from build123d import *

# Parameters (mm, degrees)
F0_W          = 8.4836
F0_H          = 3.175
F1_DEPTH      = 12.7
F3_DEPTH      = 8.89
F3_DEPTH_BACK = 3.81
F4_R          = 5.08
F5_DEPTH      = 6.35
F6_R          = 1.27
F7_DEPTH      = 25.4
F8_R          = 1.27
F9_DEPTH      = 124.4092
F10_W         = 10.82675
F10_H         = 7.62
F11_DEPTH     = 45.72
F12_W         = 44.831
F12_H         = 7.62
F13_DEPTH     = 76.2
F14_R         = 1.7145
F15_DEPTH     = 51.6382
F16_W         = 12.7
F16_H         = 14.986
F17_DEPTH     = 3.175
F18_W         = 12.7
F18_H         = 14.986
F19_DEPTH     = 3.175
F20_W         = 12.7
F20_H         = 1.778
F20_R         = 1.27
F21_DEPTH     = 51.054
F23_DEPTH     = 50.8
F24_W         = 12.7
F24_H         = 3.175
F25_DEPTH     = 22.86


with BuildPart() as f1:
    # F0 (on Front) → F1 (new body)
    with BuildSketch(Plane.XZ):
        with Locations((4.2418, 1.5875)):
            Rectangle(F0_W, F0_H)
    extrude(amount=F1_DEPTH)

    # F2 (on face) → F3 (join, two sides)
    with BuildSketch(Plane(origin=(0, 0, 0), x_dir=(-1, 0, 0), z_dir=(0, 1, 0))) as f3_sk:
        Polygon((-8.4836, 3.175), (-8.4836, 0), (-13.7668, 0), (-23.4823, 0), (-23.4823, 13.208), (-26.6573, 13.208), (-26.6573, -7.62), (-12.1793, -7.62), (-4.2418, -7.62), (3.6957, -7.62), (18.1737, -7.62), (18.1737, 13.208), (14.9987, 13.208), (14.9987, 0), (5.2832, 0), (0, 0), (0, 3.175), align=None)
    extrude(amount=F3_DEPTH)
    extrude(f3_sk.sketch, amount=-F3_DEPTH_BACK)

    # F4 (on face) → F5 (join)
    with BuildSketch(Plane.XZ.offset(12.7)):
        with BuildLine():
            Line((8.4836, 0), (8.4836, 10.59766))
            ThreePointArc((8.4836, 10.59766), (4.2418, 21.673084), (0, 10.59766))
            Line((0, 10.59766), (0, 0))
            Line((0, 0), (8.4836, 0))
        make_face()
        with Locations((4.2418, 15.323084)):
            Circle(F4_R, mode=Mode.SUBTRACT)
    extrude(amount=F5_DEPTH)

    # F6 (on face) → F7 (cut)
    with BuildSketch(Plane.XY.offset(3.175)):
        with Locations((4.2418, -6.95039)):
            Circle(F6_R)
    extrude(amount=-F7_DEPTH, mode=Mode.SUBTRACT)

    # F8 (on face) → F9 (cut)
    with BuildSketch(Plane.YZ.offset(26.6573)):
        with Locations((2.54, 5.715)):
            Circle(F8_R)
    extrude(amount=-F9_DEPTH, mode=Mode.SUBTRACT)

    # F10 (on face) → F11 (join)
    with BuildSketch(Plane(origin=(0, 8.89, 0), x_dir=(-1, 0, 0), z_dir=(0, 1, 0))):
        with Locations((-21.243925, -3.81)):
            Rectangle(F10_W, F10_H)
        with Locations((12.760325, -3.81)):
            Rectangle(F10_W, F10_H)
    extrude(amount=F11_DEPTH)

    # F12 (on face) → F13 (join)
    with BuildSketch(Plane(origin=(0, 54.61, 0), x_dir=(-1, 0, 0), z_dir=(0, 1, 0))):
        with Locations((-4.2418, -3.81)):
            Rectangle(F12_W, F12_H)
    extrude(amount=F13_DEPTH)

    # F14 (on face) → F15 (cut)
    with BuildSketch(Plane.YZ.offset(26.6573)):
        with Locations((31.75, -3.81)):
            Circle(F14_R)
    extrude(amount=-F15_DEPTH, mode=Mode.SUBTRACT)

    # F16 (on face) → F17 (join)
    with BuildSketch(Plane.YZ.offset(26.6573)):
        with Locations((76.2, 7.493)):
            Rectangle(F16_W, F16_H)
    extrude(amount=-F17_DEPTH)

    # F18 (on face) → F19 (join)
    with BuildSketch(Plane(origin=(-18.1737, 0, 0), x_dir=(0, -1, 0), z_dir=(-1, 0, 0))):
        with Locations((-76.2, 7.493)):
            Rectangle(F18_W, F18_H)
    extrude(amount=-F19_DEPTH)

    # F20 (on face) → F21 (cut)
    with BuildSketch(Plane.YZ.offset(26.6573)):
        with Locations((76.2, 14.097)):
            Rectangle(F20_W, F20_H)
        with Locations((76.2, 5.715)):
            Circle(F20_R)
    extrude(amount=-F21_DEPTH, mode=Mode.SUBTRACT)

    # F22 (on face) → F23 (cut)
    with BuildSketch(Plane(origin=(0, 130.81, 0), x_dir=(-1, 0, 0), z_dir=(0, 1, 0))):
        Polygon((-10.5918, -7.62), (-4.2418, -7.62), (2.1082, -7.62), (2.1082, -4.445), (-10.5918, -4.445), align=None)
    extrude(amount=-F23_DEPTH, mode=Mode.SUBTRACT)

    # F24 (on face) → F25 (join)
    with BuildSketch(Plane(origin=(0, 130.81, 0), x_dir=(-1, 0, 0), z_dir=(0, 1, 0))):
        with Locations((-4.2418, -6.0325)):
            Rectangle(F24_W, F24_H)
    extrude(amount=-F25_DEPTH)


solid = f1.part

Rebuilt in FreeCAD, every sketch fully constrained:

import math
import FreeCAD as App
import Part
import Sketcher
from FreeCAD import Vector
Q = App.Units.Quantity

doc = App.newDocument("Part")
params = doc.addObject("Spreadsheet::Sheet", "Params")
for row, (alias, value) in enumerate([
    ("sketch1_width", "0.334 in"),
    ("sketch1_height", "0.125 in"),
    ("pad1_length", "0.5 in"),
    ("sketch2_height", "0.52 in"),
    ("sketch2_height2", "0.82 in"),
    ("sketch2_width", "0.125 in"),
    ("sketch2_width2", "1.765 in"),
    ("sketch2_width3", "0.334 in"),
    ("pad2_length", "0.35 in"),
    ("pad2_length2", "0.15 in"),
    ("sketch3_diameter", "0.4 in"),
    ("sketch3_radius", "0.25 in"),
    ("sketch3_width", "0.334 in"),
    ("pad3_length", "0.25 in"),
    ("sketch4_diameter", "0.1 in"),
    ("pocket1_length", "1 in"),
    ("sketch5_diameter", "0.1 in"),
    ("pocket2_length", "4.898 in"),
    ("sketch6_height", "0.3 in"),
    ("pad4_length", "1.8 in"),
    ("sketch7_height", "0.3 in"),
    ("sketch7_width", "1.765 in"),
    ("pad5_length", "3 in"),
    ("sketch8_diameter", "0.135 in"),
    ("pocket3_length", "2.033 in"),
    ("sketch9_width", "0.5 in"),
    ("sketch9_height", "0.59 in"),
    ("pad6_length", "0.125 in"),
    ("sketch10_width", "0.5 in"),
    ("sketch10_height", "0.59 in"),
    ("pad7_length", "0.125 in"),
    ("sketch11_diameter", "0.1 in"),
    ("sketch11_width", "0.5 in"),
    ("sketch11_height", "0.07 in"),
    ("pocket4_length", "2.01 in"),
    ("sketch12_width", "0.5 in"),
    ("sketch12_height", "0.125 in"),
    ("pocket5_length", "2 in"),
    ("sketch13_width", "0.5 in"),
    ("sketch13_height", "0.125 in"),
    ("pad8_length", "0.9 in"),
], start=1):
    params.set(f"A{row}", alias)
    params.set(f"B{row}", "=" + value)
    params.setAlias(f"B{row}", alias)

body = doc.addObject("PartDesign::Body", "Body")

sketch1 = body.newObject("Sketcher::SketchObject", "Sketch")
sketch1.AttachmentSupport = (doc.getObject("XZ_Plane"), [""])
sketch1.MapMode = "FlatFace"
sketch1.addGeometry(Part.LineSegment(Vector(0, 3.175, 0), Vector(0, 0, 0)), False)
sketch1.addGeometry(Part.LineSegment(Vector(0, 0, 0), Vector(8.4836, 0, 0)), False)
sketch1.addGeometry(Part.LineSegment(Vector(8.4836, 0, 0), Vector(8.4836, 3.175, 0)), False)
sketch1.addGeometry(Part.LineSegment(Vector(8.4836, 3.175, 0), Vector(0, 3.175, 0)), False)
sketch1.addConstraint(Sketcher.Constraint("Coincident", 0, 2, 1, 1))
sketch1.addConstraint(Sketcher.Constraint("Coincident", 1, 2, 2, 1))
sketch1.addConstraint(Sketcher.Constraint("Coincident", 2, 2, 3, 1))
sketch1.addConstraint(Sketcher.Constraint("Coincident", 3, 2, 0, 1))
sketch1.addConstraint(Sketcher.Constraint("Vertical", 0))
sketch1.addConstraint(Sketcher.Constraint("Horizontal", 1))
sketch1.addConstraint(Sketcher.Constraint("Vertical", 2))
sketch1.addConstraint(Sketcher.Constraint("Horizontal", 3))
sketch1.addConstraint(Sketcher.Constraint("Coincident", 0, 2, -1, 1))
sketch1.addConstraint(Sketcher.Constraint("DistanceX", 1, 1, 1, 2, Q("0.334 in")))
sketch1.addConstraint(Sketcher.Constraint("DistanceY", 0, 2, 0, 1, Q("0.125 in")))
sketch1.setExpression("Constraints[9]", "Params.sketch1_width")
sketch1.setExpression("Constraints[10]", "Params.sketch1_height")
pad1 = body.newObject("PartDesign::Pad", "Pad")
pad1.Profile = sketch1
pad1.setExpression("Length", "Params.pad1_length")

sketch2 = body.newObject("Sketcher::SketchObject", "Sketch001")
sketch2.AttachmentSupport = (doc.getObject("XZ_Plane"), [""])
sketch2.MapMode = "FlatFace"
sketch2.addGeometry(Part.LineSegment(Vector(8.4836, 3.175, 0), Vector(8.4836, 0, 0)), False)
sketch2.addGeometry(Part.LineSegment(Vector(8.4836, 0, 0), Vector(23.4823, 0, 0)), False)
sketch2.addGeometry(Part.LineSegment(Vector(23.4823, 0, 0), Vector(23.4823, 13.208, 0)), False)
sketch2.addGeometry(Part.LineSegment(Vector(23.4823, 13.208, 0), Vector(26.6573, 13.208, 0)), False)
sketch2.addGeometry(Part.LineSegment(Vector(26.6573, 13.208, 0), Vector(26.6573, -7.62, 0)), False)
sketch2.addGeometry(Part.LineSegment(Vector(26.6573, -7.62, 0), Vector(-18.1737, -7.62, 0)), False)
sketch2.addGeometry(Part.LineSegment(Vector(-18.1737, -7.62, 0), Vector(-18.1737, 13.208, 0)), False)
sketch2.addGeometry(Part.LineSegment(Vector(-18.1737, 13.208, 0), Vector(-14.9987, 13.208, 0)), False)
sketch2.addGeometry(Part.LineSegment(Vector(-14.9987, 13.208, 0), Vector(-14.9987, 0, 0)), False)
sketch2.addGeometry(Part.LineSegment(Vector(-14.9987, 0, 0), Vector(0, 0, 0)), False)
sketch2.addGeometry(Part.LineSegment(Vector(0, 0, 0), Vector(0, 3.175, 0)), False)
sketch2.addGeometry(Part.LineSegment(Vector(0, 3.175, 0), Vector(8.4836, 3.175, 0)), False)
sketch2.addConstraint(Sketcher.Constraint("Coincident", 0, 2, 1, 1))
sketch2.addConstraint(Sketcher.Constraint("Coincident", 1, 2, 2, 1))
sketch2.addConstraint(Sketcher.Constraint("Coincident", 2, 2, 3, 1))
sketch2.addConstraint(Sketcher.Constraint("Coincident", 3, 2, 4, 1))
sketch2.addConstraint(Sketcher.Constraint("Coincident", 4, 2, 5, 1))
sketch2.addConstraint(Sketcher.Constraint("Coincident", 5, 2, 6, 1))
sketch2.addConstraint(Sketcher.Constraint("Coincident", 6, 2, 7, 1))
sketch2.addConstraint(Sketcher.Constraint("Coincident", 7, 2, 8, 1))
sketch2.addConstraint(Sketcher.Constraint("Coincident", 8, 2, 9, 1))
sketch2.addConstraint(Sketcher.Constraint("Coincident", 9, 2, 10, 1))
sketch2.addConstraint(Sketcher.Constraint("Coincident", 10, 2, 11, 1))
sketch2.addConstraint(Sketcher.Constraint("Coincident", 11, 2, 0, 1))
sketch2.addConstraint(Sketcher.Constraint("Vertical", 0))
sketch2.addConstraint(Sketcher.Constraint("Horizontal", 1))
sketch2.addConstraint(Sketcher.Constraint("Vertical", 2))
sketch2.addConstraint(Sketcher.Constraint("Horizontal", 3))
sketch2.addConstraint(Sketcher.Constraint("Vertical", 4))
sketch2.addConstraint(Sketcher.Constraint("Horizontal", 5))
sketch2.addConstraint(Sketcher.Constraint("Vertical", 6))
sketch2.addConstraint(Sketcher.Constraint("Horizontal", 7))
sketch2.addConstraint(Sketcher.Constraint("Vertical", 8))
sketch2.addConstraint(Sketcher.Constraint("Horizontal", 9))
sketch2.addConstraint(Sketcher.Constraint("Vertical", 10))
sketch2.addConstraint(Sketcher.Constraint("Horizontal", 11))
sketch2.addConstraint(Sketcher.Constraint("Coincident", 9, 2, -1, 1))
sketch2.addConstraint(Sketcher.Constraint("PointOnObject", 0, 2, -1))
sketch2.addConstraint(Sketcher.Constraint("Horizontal", 3, 2, 6, 2))
sketch2.addConstraint(Sketcher.Constraint("Equal", 3, 7))
sketch2.addConstraint(Sketcher.Constraint("Equal", 1, 9))
sketch2.addConstraint(Sketcher.Constraint("Equal", 7, 0))
sketch2.addConstraint(Sketcher.Constraint("DistanceY", 2, 1, 2, 2, Q("0.52 in")))
sketch2.addConstraint(Sketcher.Constraint("DistanceY", 4, 2, 4, 1, Q("0.82 in")))
sketch2.addConstraint(Sketcher.Constraint("DistanceX", 3, 1, 3, 2, Q("0.125 in")))
sketch2.addConstraint(Sketcher.Constraint("DistanceX", 5, 2, 5, 1, Q("1.765 in")))
sketch2.addConstraint(Sketcher.Constraint("DistanceX", 11, 1, 11, 2, Q("0.334 in")))
sketch2.setExpression("Constraints[30]", "Params.sketch2_height")
sketch2.setExpression("Constraints[31]", "Params.sketch2_height2")
sketch2.setExpression("Constraints[32]", "Params.sketch2_width")
sketch2.setExpression("Constraints[33]", "Params.sketch2_width2")
sketch2.setExpression("Constraints[34]", "Params.sketch2_width3")
pad2 = body.newObject("PartDesign::Pad", "Pad001")
pad2.Profile = sketch2
pad2.Type = "TwoLengths"
pad2.setExpression("Length", "Params.pad2_length")
pad2.setExpression("Length2", "Params.pad2_length2")
pad2.Reversed = True

sketch3 = body.newObject("Sketcher::SketchObject", "Sketch002")
sketch3.AttachmentSupport = (doc.getObject("XZ_Plane"), [""])
sketch3.MapMode = "FlatFace"
sketch3.AttachmentOffset = App.Placement(Vector(0, 0, 0.5 * 25.4), App.Rotation())
sketch3.addGeometry(Part.LineSegment(Vector(8.4836, 0, 0), Vector(8.4836, 10.59766, 0)), False)
sketch3.addGeometry(Part.ArcOfCircle(Part.Circle(Vector(4.2418, 15.323084, 0), Vector(0, 0, 1), 6.35), math.radians(-48.087109), math.radians(228.087109)), False)
sketch3.addGeometry(Part.LineSegment(Vector(0, 10.59766, 0), Vector(0, 0, 0)), False)
sketch3.addGeometry(Part.LineSegment(Vector(0, 0, 0), Vector(8.4836, 0, 0)), False)
sketch3.addGeometry(Part.Circle(Vector(4.2418, 15.323084, 0), Vector(0, 0, 1), 5.08), False)
sketch3.addConstraint(Sketcher.Constraint("Coincident", 0, 2, 1, 1))
sketch3.addConstraint(Sketcher.Constraint("Coincident", 1, 2, 2, 1))
sketch3.addConstraint(Sketcher.Constraint("Coincident", 2, 2, 3, 1))
sketch3.addConstraint(Sketcher.Constraint("Coincident", 3, 2, 0, 1))
sketch3.addConstraint(Sketcher.Constraint("Vertical", 0))
sketch3.addConstraint(Sketcher.Constraint("Vertical", 2))
sketch3.addConstraint(Sketcher.Constraint("Horizontal", 3))
sketch3.addConstraint(Sketcher.Constraint("Coincident", 2, 2, -1, 1))
sketch3.addConstraint(Sketcher.Constraint("Coincident", 4, 3, 1, 3))
sketch3.addConstraint(Sketcher.Constraint("Horizontal", 0, 2, 1, 2))
sketch3.addConstraint(Sketcher.Constraint("Diameter", 4, Q("0.4 in")))
sketch3.addConstraint(Sketcher.Constraint("Radius", 1, Q("0.25 in")))
sketch3.addConstraint(Sketcher.Constraint("DistanceX", 3, 1, 3, 2, Q("0.334 in")))
sketch3.addConstraint(Sketcher.Constraint("DistanceY", 0, 1, 0, 2, Q("10.59766 mm")))
sketch3.setExpression("Constraints[10]", "Params.sketch3_diameter")
sketch3.setExpression("Constraints[11]", "Params.sketch3_radius")
sketch3.setExpression("Constraints[12]", "Params.sketch3_width")
pad3 = body.newObject("PartDesign::Pad", "Pad002")
pad3.Profile = sketch3
pad3.setExpression("Length", "Params.pad3_length")

sketch4 = body.newObject("Sketcher::SketchObject", "Sketch003")
sketch4.AttachmentSupport = (doc.getObject("XY_Plane"), [""])
sketch4.MapMode = "FlatFace"
sketch4.AttachmentOffset = App.Placement(Vector(0, 0, 0.125 * 25.4), App.Rotation())
sketch4.addGeometry(Part.Circle(Vector(4.2418, -6.95039, 0), Vector(0, 0, 1), 1.27), False)
sketch4.addConstraint(Sketcher.Constraint("Diameter", 0, Q("0.1 in")))
sketch4.addConstraint(Sketcher.Constraint("DistanceX", -1, 1, 0, 3, Q("0.167 in")))
sketch4.addConstraint(Sketcher.Constraint("DistanceY", 0, 3, -1, 1, Q("6.95039 mm")))
sketch4.setExpression("Constraints[0]", "Params.sketch4_diameter")
pocket1 = body.newObject("PartDesign::Pocket", "Pocket")
pocket1.Profile = sketch4
pocket1.setExpression("Length", "Params.pocket1_length")

sketch5 = body.newObject("Sketcher::SketchObject", "Sketch004")
sketch5.AttachmentSupport = (doc.getObject("YZ_Plane"), [""])
sketch5.MapMode = "FlatFace"
sketch5.AttachmentOffset = App.Placement(Vector(0, 0, 1.0495 * 25.4), App.Rotation())
sketch5.addGeometry(Part.Circle(Vector(2.54, 5.715, 0), Vector(0, 0, 1), 1.27), False)
sketch5.addConstraint(Sketcher.Constraint("Diameter", 0, Q("0.1 in")))
sketch5.addConstraint(Sketcher.Constraint("DistanceX", -1, 1, 0, 3, Q("0.1 in")))
sketch5.addConstraint(Sketcher.Constraint("DistanceY", -1, 1, 0, 3, Q("0.225 in")))
sketch5.setExpression("Constraints[0]", "Params.sketch5_diameter")
pocket2 = body.newObject("PartDesign::Pocket", "Pocket001")
pocket2.Profile = sketch5
pocket2.setExpression("Length", "Params.pocket2_length")

sketch6 = body.newObject("Sketcher::SketchObject", "Sketch005")
sketch6.AttachmentSupport = (doc.getObject("XZ_Plane"), [""])
sketch6.MapMode = "FlatFace"
sketch6.AttachmentOffset = App.Placement(Vector(0, 0, -0.35 * 25.4), App.Rotation())
sketch6.addGeometry(Part.LineSegment(Vector(26.6573, 0, 0), Vector(26.6573, -7.62, 0)), False)
sketch6.addGeometry(Part.LineSegment(Vector(26.6573, -7.62, 0), Vector(15.83055, -7.62, 0)), False)
sketch6.addGeometry(Part.LineSegment(Vector(15.83055, -7.62, 0), Vector(15.83055, 0, 0)), False)
sketch6.addGeometry(Part.LineSegment(Vector(15.83055, 0, 0), Vector(26.6573, 0, 0)), False)
sketch6.addGeometry(Part.LineSegment(Vector(-7.34695, 0, 0), Vector(-7.34695, -7.62, 0)), False)
sketch6.addGeometry(Part.LineSegment(Vector(-7.34695, -7.62, 0), Vector(-18.1737, -7.62, 0)), False)
sketch6.addGeometry(Part.LineSegment(Vector(-18.1737, -7.62, 0), Vector(-18.1737, 0, 0)), False)
sketch6.addGeometry(Part.LineSegment(Vector(-18.1737, 0, 0), Vector(-7.34695, 0, 0)), False)
sketch6.addConstraint(Sketcher.Constraint("Coincident", 0, 2, 1, 1))
sketch6.addConstraint(Sketcher.Constraint("Coincident", 1, 2, 2, 1))
sketch6.addConstraint(Sketcher.Constraint("Coincident", 2, 2, 3, 1))
sketch6.addConstraint(Sketcher.Constraint("Coincident", 3, 2, 0, 1))
sketch6.addConstraint(Sketcher.Constraint("Coincident", 4, 2, 5, 1))
sketch6.addConstraint(Sketcher.Constraint("Coincident", 5, 2, 6, 1))
sketch6.addConstraint(Sketcher.Constraint("Coincident", 6, 2, 7, 1))
sketch6.addConstraint(Sketcher.Constraint("Coincident", 7, 2, 4, 1))
sketch6.addConstraint(Sketcher.Constraint("Vertical", 0))
sketch6.addConstraint(Sketcher.Constraint("Horizontal", 1))
sketch6.addConstraint(Sketcher.Constraint("Vertical", 2))
sketch6.addConstraint(Sketcher.Constraint("Horizontal", 3))
sketch6.addConstraint(Sketcher.Constraint("Vertical", 4))
sketch6.addConstraint(Sketcher.Constraint("Horizontal", 5))
sketch6.addConstraint(Sketcher.Constraint("Vertical", 6))
sketch6.addConstraint(Sketcher.Constraint("Horizontal", 7))
sketch6.addConstraint(Sketcher.Constraint("PointOnObject", 2, 2, -1))
sketch6.addConstraint(Sketcher.Constraint("PointOnObject", 6, 2, -1))
sketch6.addConstraint(Sketcher.Constraint("Horizontal", 1, 2, 4, 2))
sketch6.addConstraint(Sketcher.Constraint("Equal", 3, 5))
sketch6.addConstraint(Sketcher.Constraint("DistanceY", 0, 2, 0, 1, Q("0.3 in")))
sketch6.addConstraint(Sketcher.Constraint("DistanceX", 5, 2, 0, 2, Q("1.765 in")))
sketch6.addConstraint(Sketcher.Constraint("DistanceX", -1, 1, 0, 2, Q("1.0495 in")))
sketch6.addConstraint(Sketcher.Constraint("DistanceX", 4, 2, 1, 2, Q("0.9125 in")))
sketch6.setExpression("Constraints[20]", "Params.sketch6_height")
pad4 = body.newObject("PartDesign::Pad", "Pad003")
pad4.Profile = sketch6
pad4.setExpression("Length", "Params.pad4_length")
pad4.Reversed = True

sketch7 = body.newObject("Sketcher::SketchObject", "Sketch006")
sketch7.AttachmentSupport = (doc.getObject("XZ_Plane"), [""])
sketch7.MapMode = "FlatFace"
sketch7.AttachmentOffset = App.Placement(Vector(0, 0, -2.15 * 25.4), App.Rotation())
sketch7.addGeometry(Part.LineSegment(Vector(26.6573, 0, 0), Vector(26.6573, -7.62, 0)), False)
sketch7.addGeometry(Part.LineSegment(Vector(26.6573, -7.62, 0), Vector(-18.1737, -7.62, 0)), False)
sketch7.addGeometry(Part.LineSegment(Vector(-18.1737, -7.62, 0), Vector(-18.1737, 0, 0)), False)
sketch7.addGeometry(Part.LineSegment(Vector(-18.1737, 0, 0), Vector(26.6573, 0, 0)), False)
sketch7.addConstraint(Sketcher.Constraint("Coincident", 0, 2, 1, 1))
sketch7.addConstraint(Sketcher.Constraint("Coincident", 1, 2, 2, 1))
sketch7.addConstraint(Sketcher.Constraint("Coincident", 2, 2, 3, 1))
sketch7.addConstraint(Sketcher.Constraint("Coincident", 3, 2, 0, 1))
sketch7.addConstraint(Sketcher.Constraint("Vertical", 0))
sketch7.addConstraint(Sketcher.Constraint("Horizontal", 1))
sketch7.addConstraint(Sketcher.Constraint("Vertical", 2))
sketch7.addConstraint(Sketcher.Constraint("Horizontal", 3))
sketch7.addConstraint(Sketcher.Constraint("PointOnObject", 2, 2, -1))
sketch7.addConstraint(Sketcher.Constraint("DistanceY", 0, 2, 0, 1, Q("0.3 in")))
sketch7.addConstraint(Sketcher.Constraint("DistanceX", 1, 2, 1, 1, Q("1.765 in")))
sketch7.addConstraint(Sketcher.Constraint("DistanceX", -1, 1, 0, 2, Q("1.0495 in")))
sketch7.setExpression("Constraints[9]", "Params.sketch7_height")
sketch7.setExpression("Constraints[10]", "Params.sketch7_width")
pad5 = body.newObject("PartDesign::Pad", "Pad004")
pad5.Profile = sketch7
pad5.setExpression("Length", "Params.pad5_length")
pad5.Reversed = True

sketch8 = body.newObject("Sketcher::SketchObject", "Sketch007")
sketch8.AttachmentSupport = (doc.getObject("YZ_Plane"), [""])
sketch8.MapMode = "FlatFace"
sketch8.AttachmentOffset = App.Placement(Vector(0, 0, 1.0495 * 25.4), App.Rotation())
sketch8.addGeometry(Part.Circle(Vector(31.75, -3.81, 0), Vector(0, 0, 1), 1.7145), False)
sketch8.addConstraint(Sketcher.Constraint("Diameter", 0, Q("0.135 in")))
sketch8.addConstraint(Sketcher.Constraint("DistanceX", -1, 1, 0, 3, Q("1.25 in")))
sketch8.addConstraint(Sketcher.Constraint("DistanceY", 0, 3, -1, 1, Q("0.15 in")))
sketch8.setExpression("Constraints[0]", "Params.sketch8_diameter")
pocket3 = body.newObject("PartDesign::Pocket", "Pocket002")
pocket3.Profile = sketch8
pocket3.setExpression("Length", "Params.pocket3_length")

sketch9 = body.newObject("Sketcher::SketchObject", "Sketch008")
sketch9.AttachmentSupport = (doc.getObject("YZ_Plane"), [""])
sketch9.MapMode = "FlatFace"
sketch9.AttachmentOffset = App.Placement(Vector(0, 0, 1.0495 * 25.4), App.Rotation())
sketch9.addGeometry(Part.LineSegment(Vector(69.85, 14.986, 0), Vector(69.85, 0, 0)), False)
sketch9.addGeometry(Part.LineSegment(Vector(69.85, 0, 0), Vector(82.55, 0, 0)), False)
sketch9.addGeometry(Part.LineSegment(Vector(82.55, 0, 0), Vector(82.55, 14.986, 0)), False)
sketch9.addGeometry(Part.LineSegment(Vector(82.55, 14.986, 0), Vector(69.85, 14.986, 0)), False)
sketch9.addConstraint(Sketcher.Constraint("Coincident", 0, 2, 1, 1))
sketch9.addConstraint(Sketcher.Constraint("Coincident", 1, 2, 2, 1))
sketch9.addConstraint(Sketcher.Constraint("Coincident", 2, 2, 3, 1))
sketch9.addConstraint(Sketcher.Constraint("Coincident", 3, 2, 0, 1))
sketch9.addConstraint(Sketcher.Constraint("Vertical", 0))
sketch9.addConstraint(Sketcher.Constraint("Horizontal", 1))
sketch9.addConstraint(Sketcher.Constraint("Vertical", 2))
sketch9.addConstraint(Sketcher.Constraint("Horizontal", 3))
sketch9.addConstraint(Sketcher.Constraint("PointOnObject", 0, 2, -1))
sketch9.addConstraint(Sketcher.Constraint("DistanceX", 1, 1, 1, 2, Q("0.5 in")))
sketch9.addConstraint(Sketcher.Constraint("DistanceY", 0, 2, 0, 1, Q("0.59 in")))
sketch9.addConstraint(Sketcher.Constraint("DistanceX", -1, 1, 0, 2, Q("2.75 in")))
sketch9.setExpression("Constraints[9]", "Params.sketch9_width")
sketch9.setExpression("Constraints[10]", "Params.sketch9_height")
pad6 = body.newObject("PartDesign::Pad", "Pad005")
pad6.Profile = sketch9
pad6.setExpression("Length", "Params.pad6_length")
pad6.Reversed = True

sketch10 = body.newObject("Sketcher::SketchObject", "Sketch009")
sketch10.AttachmentSupport = (doc.getObject("YZ_Plane"), [""])
sketch10.MapMode = "FlatFace"
sketch10.AttachmentOffset = App.Placement(Vector(0, 0, -0.7155 * 25.4), App.Rotation())
sketch10.addGeometry(Part.LineSegment(Vector(82.55, 14.986, 0), Vector(82.55, 0, 0)), False)
sketch10.addGeometry(Part.LineSegment(Vector(82.55, 0, 0), Vector(69.85, 0, 0)), False)
sketch10.addGeometry(Part.LineSegment(Vector(69.85, 0, 0), Vector(69.85, 14.986, 0)), False)
sketch10.addGeometry(Part.LineSegment(Vector(69.85, 14.986, 0), Vector(82.55, 14.986, 0)), False)
sketch10.addConstraint(Sketcher.Constraint("Coincident", 0, 2, 1, 1))
sketch10.addConstraint(Sketcher.Constraint("Coincident", 1, 2, 2, 1))
sketch10.addConstraint(Sketcher.Constraint("Coincident", 2, 2, 3, 1))
sketch10.addConstraint(Sketcher.Constraint("Coincident", 3, 2, 0, 1))
sketch10.addConstraint(Sketcher.Constraint("Vertical", 0))
sketch10.addConstraint(Sketcher.Constraint("Horizontal", 1))
sketch10.addConstraint(Sketcher.Constraint("Vertical", 2))
sketch10.addConstraint(Sketcher.Constraint("Horizontal", 3))
sketch10.addConstraint(Sketcher.Constraint("PointOnObject", 0, 2, -1))
sketch10.addConstraint(Sketcher.Constraint("DistanceX", 1, 2, 1, 1, Q("0.5 in")))
sketch10.addConstraint(Sketcher.Constraint("DistanceY", 0, 2, 0, 1, Q("0.59 in")))
sketch10.addConstraint(Sketcher.Constraint("DistanceX", -1, 1, 0, 2, Q("3.25 in")))
sketch10.setExpression("Constraints[9]", "Params.sketch10_width")
sketch10.setExpression("Constraints[10]", "Params.sketch10_height")
pad7 = body.newObject("PartDesign::Pad", "Pad006")
pad7.Profile = sketch10
pad7.setExpression("Length", "Params.pad7_length")

sketch11 = body.newObject("Sketcher::SketchObject", "Sketch010")
sketch11.AttachmentSupport = (doc.getObject("YZ_Plane"), [""])
sketch11.MapMode = "FlatFace"
sketch11.AttachmentOffset = App.Placement(Vector(0, 0, 1.0495 * 25.4), App.Rotation())
sketch11.addGeometry(Part.LineSegment(Vector(69.85, 14.986, 0), Vector(69.85, 13.208, 0)), False)
sketch11.addGeometry(Part.LineSegment(Vector(69.85, 13.208, 0), Vector(82.55, 13.208, 0)), False)
sketch11.addGeometry(Part.LineSegment(Vector(82.55, 13.208, 0), Vector(82.55, 14.986, 0)), False)
sketch11.addGeometry(Part.LineSegment(Vector(82.55, 14.986, 0), Vector(69.85, 14.986, 0)), False)
sketch11.addGeometry(Part.Circle(Vector(76.2, 5.715, 0), Vector(0, 0, 1), 1.27), False)
sketch11.addConstraint(Sketcher.Constraint("Coincident", 0, 2, 1, 1))
sketch11.addConstraint(Sketcher.Constraint("Coincident", 1, 2, 2, 1))
sketch11.addConstraint(Sketcher.Constraint("Coincident", 2, 2, 3, 1))
sketch11.addConstraint(Sketcher.Constraint("Coincident", 3, 2, 0, 1))
sketch11.addConstraint(Sketcher.Constraint("Vertical", 0))
sketch11.addConstraint(Sketcher.Constraint("Horizontal", 1))
sketch11.addConstraint(Sketcher.Constraint("Vertical", 2))
sketch11.addConstraint(Sketcher.Constraint("Horizontal", 3))
sketch11.addConstraint(Sketcher.Constraint("Diameter", 4, Q("0.1 in")))
sketch11.addConstraint(Sketcher.Constraint("DistanceX", 1, 1, 1, 2, Q("0.5 in")))
sketch11.addConstraint(Sketcher.Constraint("DistanceX", -1, 1, 4, 3, Q("3 in")))
sketch11.addConstraint(Sketcher.Constraint("DistanceY", 0, 2, 0, 1, Q("0.07 in")))
sketch11.addConstraint(Sketcher.Constraint("DistanceX", -1, 1, 0, 2, Q("2.75 in")))
sketch11.addConstraint(Sketcher.Constraint("DistanceY", -1, 1, 0, 2, Q("0.52 in")))
sketch11.addConstraint(Sketcher.Constraint("DistanceY", -1, 1, 4, 3, Q("0.225 in")))
sketch11.setExpression("Constraints[8]", "Params.sketch11_diameter")
sketch11.setExpression("Constraints[9]", "Params.sketch11_width")
sketch11.setExpression("Constraints[11]", "Params.sketch11_height")
pocket4 = body.newObject("PartDesign::Pocket", "Pocket003")
pocket4.Profile = sketch11
pocket4.setExpression("Length", "Params.pocket4_length")

sketch12 = body.newObject("Sketcher::SketchObject", "Sketch011")
sketch12.AttachmentSupport = (doc.getObject("XZ_Plane"), [""])
sketch12.MapMode = "FlatFace"
sketch12.AttachmentOffset = App.Placement(Vector(0, 0, -5.15 * 25.4), App.Rotation())
sketch12.addGeometry(Part.LineSegment(Vector(10.5918, -7.62, 0), Vector(-2.1082, -7.62, 0)), False)
sketch12.addGeometry(Part.LineSegment(Vector(-2.1082, -7.62, 0), Vector(-2.1082, -4.445, 0)), False)
sketch12.addGeometry(Part.LineSegment(Vector(-2.1082, -4.445, 0), Vector(10.5918, -4.445, 0)), False)
sketch12.addGeometry(Part.LineSegment(Vector(10.5918, -4.445, 0), Vector(10.5918, -7.62, 0)), False)
sketch12.addConstraint(Sketcher.Constraint("Coincident", 0, 2, 1, 1))
sketch12.addConstraint(Sketcher.Constraint("Coincident", 1, 2, 2, 1))
sketch12.addConstraint(Sketcher.Constraint("Coincident", 2, 2, 3, 1))
sketch12.addConstraint(Sketcher.Constraint("Coincident", 3, 2, 0, 1))
sketch12.addConstraint(Sketcher.Constraint("Horizontal", 0))
sketch12.addConstraint(Sketcher.Constraint("Vertical", 1))
sketch12.addConstraint(Sketcher.Constraint("Horizontal", 2))
sketch12.addConstraint(Sketcher.Constraint("Vertical", 3))
sketch12.addConstraint(Sketcher.Constraint("DistanceX", 0, 2, 0, 1, Q("0.5 in")))
sketch12.addConstraint(Sketcher.Constraint("DistanceY", 0, 2, -1, 1, Q("0.3 in")))
sketch12.addConstraint(Sketcher.Constraint("DistanceY", 1, 1, 1, 2, Q("0.125 in")))
sketch12.addConstraint(Sketcher.Constraint("DistanceX", 0, 2, -1, 1, Q("0.083 in")))
sketch12.setExpression("Constraints[8]", "Params.sketch12_width")
sketch12.setExpression("Constraints[10]", "Params.sketch12_height")
pocket5 = body.newObject("PartDesign::Pocket", "Pocket004")
pocket5.Profile = sketch12
pocket5.setExpression("Length", "Params.pocket5_length")
pocket5.Reversed = True

sketch13 = body.newObject("Sketcher::SketchObject", "Sketch012")
sketch13.AttachmentSupport = (doc.getObject("XZ_Plane"), [""])
sketch13.MapMode = "FlatFace"
sketch13.AttachmentOffset = App.Placement(Vector(0, 0, -5.15 * 25.4), App.Rotation())
sketch13.addGeometry(Part.LineSegment(Vector(10.5918, -4.445, 0), Vector(10.5918, -7.62, 0)), False)
sketch13.addGeometry(Part.LineSegment(Vector(10.5918, -7.62, 0), Vector(-2.1082, -7.62, 0)), False)
sketch13.addGeometry(Part.LineSegment(Vector(-2.1082, -7.62, 0), Vector(-2.1082, -4.445, 0)), False)
sketch13.addGeometry(Part.LineSegment(Vector(-2.1082, -4.445, 0), Vector(10.5918, -4.445, 0)), False)
sketch13.addConstraint(Sketcher.Constraint("Coincident", 0, 2, 1, 1))
sketch13.addConstraint(Sketcher.Constraint("Coincident", 1, 2, 2, 1))
sketch13.addConstraint(Sketcher.Constraint("Coincident", 2, 2, 3, 1))
sketch13.addConstraint(Sketcher.Constraint("Coincident", 3, 2, 0, 1))
sketch13.addConstraint(Sketcher.Constraint("Vertical", 0))
sketch13.addConstraint(Sketcher.Constraint("Horizontal", 1))
sketch13.addConstraint(Sketcher.Constraint("Vertical", 2))
sketch13.addConstraint(Sketcher.Constraint("Horizontal", 3))
sketch13.addConstraint(Sketcher.Constraint("DistanceX", 1, 2, 1, 1, Q("0.5 in")))
sketch13.addConstraint(Sketcher.Constraint("DistanceY", 0, 2, -1, 1, Q("0.3 in")))
sketch13.addConstraint(Sketcher.Constraint("DistanceY", 0, 2, 0, 1, Q("0.125 in")))
sketch13.addConstraint(Sketcher.Constraint("DistanceX", -1, 1, 0, 2, Q("0.417 in")))
sketch13.setExpression("Constraints[8]", "Params.sketch13_width")
sketch13.setExpression("Constraints[10]", "Params.sketch13_height")
pad8 = body.newObject("PartDesign::Pad", "Pad007")
pad8.Profile = sketch13
pad8.setExpression("Length", "Params.pad8_length")

doc.recompute()
